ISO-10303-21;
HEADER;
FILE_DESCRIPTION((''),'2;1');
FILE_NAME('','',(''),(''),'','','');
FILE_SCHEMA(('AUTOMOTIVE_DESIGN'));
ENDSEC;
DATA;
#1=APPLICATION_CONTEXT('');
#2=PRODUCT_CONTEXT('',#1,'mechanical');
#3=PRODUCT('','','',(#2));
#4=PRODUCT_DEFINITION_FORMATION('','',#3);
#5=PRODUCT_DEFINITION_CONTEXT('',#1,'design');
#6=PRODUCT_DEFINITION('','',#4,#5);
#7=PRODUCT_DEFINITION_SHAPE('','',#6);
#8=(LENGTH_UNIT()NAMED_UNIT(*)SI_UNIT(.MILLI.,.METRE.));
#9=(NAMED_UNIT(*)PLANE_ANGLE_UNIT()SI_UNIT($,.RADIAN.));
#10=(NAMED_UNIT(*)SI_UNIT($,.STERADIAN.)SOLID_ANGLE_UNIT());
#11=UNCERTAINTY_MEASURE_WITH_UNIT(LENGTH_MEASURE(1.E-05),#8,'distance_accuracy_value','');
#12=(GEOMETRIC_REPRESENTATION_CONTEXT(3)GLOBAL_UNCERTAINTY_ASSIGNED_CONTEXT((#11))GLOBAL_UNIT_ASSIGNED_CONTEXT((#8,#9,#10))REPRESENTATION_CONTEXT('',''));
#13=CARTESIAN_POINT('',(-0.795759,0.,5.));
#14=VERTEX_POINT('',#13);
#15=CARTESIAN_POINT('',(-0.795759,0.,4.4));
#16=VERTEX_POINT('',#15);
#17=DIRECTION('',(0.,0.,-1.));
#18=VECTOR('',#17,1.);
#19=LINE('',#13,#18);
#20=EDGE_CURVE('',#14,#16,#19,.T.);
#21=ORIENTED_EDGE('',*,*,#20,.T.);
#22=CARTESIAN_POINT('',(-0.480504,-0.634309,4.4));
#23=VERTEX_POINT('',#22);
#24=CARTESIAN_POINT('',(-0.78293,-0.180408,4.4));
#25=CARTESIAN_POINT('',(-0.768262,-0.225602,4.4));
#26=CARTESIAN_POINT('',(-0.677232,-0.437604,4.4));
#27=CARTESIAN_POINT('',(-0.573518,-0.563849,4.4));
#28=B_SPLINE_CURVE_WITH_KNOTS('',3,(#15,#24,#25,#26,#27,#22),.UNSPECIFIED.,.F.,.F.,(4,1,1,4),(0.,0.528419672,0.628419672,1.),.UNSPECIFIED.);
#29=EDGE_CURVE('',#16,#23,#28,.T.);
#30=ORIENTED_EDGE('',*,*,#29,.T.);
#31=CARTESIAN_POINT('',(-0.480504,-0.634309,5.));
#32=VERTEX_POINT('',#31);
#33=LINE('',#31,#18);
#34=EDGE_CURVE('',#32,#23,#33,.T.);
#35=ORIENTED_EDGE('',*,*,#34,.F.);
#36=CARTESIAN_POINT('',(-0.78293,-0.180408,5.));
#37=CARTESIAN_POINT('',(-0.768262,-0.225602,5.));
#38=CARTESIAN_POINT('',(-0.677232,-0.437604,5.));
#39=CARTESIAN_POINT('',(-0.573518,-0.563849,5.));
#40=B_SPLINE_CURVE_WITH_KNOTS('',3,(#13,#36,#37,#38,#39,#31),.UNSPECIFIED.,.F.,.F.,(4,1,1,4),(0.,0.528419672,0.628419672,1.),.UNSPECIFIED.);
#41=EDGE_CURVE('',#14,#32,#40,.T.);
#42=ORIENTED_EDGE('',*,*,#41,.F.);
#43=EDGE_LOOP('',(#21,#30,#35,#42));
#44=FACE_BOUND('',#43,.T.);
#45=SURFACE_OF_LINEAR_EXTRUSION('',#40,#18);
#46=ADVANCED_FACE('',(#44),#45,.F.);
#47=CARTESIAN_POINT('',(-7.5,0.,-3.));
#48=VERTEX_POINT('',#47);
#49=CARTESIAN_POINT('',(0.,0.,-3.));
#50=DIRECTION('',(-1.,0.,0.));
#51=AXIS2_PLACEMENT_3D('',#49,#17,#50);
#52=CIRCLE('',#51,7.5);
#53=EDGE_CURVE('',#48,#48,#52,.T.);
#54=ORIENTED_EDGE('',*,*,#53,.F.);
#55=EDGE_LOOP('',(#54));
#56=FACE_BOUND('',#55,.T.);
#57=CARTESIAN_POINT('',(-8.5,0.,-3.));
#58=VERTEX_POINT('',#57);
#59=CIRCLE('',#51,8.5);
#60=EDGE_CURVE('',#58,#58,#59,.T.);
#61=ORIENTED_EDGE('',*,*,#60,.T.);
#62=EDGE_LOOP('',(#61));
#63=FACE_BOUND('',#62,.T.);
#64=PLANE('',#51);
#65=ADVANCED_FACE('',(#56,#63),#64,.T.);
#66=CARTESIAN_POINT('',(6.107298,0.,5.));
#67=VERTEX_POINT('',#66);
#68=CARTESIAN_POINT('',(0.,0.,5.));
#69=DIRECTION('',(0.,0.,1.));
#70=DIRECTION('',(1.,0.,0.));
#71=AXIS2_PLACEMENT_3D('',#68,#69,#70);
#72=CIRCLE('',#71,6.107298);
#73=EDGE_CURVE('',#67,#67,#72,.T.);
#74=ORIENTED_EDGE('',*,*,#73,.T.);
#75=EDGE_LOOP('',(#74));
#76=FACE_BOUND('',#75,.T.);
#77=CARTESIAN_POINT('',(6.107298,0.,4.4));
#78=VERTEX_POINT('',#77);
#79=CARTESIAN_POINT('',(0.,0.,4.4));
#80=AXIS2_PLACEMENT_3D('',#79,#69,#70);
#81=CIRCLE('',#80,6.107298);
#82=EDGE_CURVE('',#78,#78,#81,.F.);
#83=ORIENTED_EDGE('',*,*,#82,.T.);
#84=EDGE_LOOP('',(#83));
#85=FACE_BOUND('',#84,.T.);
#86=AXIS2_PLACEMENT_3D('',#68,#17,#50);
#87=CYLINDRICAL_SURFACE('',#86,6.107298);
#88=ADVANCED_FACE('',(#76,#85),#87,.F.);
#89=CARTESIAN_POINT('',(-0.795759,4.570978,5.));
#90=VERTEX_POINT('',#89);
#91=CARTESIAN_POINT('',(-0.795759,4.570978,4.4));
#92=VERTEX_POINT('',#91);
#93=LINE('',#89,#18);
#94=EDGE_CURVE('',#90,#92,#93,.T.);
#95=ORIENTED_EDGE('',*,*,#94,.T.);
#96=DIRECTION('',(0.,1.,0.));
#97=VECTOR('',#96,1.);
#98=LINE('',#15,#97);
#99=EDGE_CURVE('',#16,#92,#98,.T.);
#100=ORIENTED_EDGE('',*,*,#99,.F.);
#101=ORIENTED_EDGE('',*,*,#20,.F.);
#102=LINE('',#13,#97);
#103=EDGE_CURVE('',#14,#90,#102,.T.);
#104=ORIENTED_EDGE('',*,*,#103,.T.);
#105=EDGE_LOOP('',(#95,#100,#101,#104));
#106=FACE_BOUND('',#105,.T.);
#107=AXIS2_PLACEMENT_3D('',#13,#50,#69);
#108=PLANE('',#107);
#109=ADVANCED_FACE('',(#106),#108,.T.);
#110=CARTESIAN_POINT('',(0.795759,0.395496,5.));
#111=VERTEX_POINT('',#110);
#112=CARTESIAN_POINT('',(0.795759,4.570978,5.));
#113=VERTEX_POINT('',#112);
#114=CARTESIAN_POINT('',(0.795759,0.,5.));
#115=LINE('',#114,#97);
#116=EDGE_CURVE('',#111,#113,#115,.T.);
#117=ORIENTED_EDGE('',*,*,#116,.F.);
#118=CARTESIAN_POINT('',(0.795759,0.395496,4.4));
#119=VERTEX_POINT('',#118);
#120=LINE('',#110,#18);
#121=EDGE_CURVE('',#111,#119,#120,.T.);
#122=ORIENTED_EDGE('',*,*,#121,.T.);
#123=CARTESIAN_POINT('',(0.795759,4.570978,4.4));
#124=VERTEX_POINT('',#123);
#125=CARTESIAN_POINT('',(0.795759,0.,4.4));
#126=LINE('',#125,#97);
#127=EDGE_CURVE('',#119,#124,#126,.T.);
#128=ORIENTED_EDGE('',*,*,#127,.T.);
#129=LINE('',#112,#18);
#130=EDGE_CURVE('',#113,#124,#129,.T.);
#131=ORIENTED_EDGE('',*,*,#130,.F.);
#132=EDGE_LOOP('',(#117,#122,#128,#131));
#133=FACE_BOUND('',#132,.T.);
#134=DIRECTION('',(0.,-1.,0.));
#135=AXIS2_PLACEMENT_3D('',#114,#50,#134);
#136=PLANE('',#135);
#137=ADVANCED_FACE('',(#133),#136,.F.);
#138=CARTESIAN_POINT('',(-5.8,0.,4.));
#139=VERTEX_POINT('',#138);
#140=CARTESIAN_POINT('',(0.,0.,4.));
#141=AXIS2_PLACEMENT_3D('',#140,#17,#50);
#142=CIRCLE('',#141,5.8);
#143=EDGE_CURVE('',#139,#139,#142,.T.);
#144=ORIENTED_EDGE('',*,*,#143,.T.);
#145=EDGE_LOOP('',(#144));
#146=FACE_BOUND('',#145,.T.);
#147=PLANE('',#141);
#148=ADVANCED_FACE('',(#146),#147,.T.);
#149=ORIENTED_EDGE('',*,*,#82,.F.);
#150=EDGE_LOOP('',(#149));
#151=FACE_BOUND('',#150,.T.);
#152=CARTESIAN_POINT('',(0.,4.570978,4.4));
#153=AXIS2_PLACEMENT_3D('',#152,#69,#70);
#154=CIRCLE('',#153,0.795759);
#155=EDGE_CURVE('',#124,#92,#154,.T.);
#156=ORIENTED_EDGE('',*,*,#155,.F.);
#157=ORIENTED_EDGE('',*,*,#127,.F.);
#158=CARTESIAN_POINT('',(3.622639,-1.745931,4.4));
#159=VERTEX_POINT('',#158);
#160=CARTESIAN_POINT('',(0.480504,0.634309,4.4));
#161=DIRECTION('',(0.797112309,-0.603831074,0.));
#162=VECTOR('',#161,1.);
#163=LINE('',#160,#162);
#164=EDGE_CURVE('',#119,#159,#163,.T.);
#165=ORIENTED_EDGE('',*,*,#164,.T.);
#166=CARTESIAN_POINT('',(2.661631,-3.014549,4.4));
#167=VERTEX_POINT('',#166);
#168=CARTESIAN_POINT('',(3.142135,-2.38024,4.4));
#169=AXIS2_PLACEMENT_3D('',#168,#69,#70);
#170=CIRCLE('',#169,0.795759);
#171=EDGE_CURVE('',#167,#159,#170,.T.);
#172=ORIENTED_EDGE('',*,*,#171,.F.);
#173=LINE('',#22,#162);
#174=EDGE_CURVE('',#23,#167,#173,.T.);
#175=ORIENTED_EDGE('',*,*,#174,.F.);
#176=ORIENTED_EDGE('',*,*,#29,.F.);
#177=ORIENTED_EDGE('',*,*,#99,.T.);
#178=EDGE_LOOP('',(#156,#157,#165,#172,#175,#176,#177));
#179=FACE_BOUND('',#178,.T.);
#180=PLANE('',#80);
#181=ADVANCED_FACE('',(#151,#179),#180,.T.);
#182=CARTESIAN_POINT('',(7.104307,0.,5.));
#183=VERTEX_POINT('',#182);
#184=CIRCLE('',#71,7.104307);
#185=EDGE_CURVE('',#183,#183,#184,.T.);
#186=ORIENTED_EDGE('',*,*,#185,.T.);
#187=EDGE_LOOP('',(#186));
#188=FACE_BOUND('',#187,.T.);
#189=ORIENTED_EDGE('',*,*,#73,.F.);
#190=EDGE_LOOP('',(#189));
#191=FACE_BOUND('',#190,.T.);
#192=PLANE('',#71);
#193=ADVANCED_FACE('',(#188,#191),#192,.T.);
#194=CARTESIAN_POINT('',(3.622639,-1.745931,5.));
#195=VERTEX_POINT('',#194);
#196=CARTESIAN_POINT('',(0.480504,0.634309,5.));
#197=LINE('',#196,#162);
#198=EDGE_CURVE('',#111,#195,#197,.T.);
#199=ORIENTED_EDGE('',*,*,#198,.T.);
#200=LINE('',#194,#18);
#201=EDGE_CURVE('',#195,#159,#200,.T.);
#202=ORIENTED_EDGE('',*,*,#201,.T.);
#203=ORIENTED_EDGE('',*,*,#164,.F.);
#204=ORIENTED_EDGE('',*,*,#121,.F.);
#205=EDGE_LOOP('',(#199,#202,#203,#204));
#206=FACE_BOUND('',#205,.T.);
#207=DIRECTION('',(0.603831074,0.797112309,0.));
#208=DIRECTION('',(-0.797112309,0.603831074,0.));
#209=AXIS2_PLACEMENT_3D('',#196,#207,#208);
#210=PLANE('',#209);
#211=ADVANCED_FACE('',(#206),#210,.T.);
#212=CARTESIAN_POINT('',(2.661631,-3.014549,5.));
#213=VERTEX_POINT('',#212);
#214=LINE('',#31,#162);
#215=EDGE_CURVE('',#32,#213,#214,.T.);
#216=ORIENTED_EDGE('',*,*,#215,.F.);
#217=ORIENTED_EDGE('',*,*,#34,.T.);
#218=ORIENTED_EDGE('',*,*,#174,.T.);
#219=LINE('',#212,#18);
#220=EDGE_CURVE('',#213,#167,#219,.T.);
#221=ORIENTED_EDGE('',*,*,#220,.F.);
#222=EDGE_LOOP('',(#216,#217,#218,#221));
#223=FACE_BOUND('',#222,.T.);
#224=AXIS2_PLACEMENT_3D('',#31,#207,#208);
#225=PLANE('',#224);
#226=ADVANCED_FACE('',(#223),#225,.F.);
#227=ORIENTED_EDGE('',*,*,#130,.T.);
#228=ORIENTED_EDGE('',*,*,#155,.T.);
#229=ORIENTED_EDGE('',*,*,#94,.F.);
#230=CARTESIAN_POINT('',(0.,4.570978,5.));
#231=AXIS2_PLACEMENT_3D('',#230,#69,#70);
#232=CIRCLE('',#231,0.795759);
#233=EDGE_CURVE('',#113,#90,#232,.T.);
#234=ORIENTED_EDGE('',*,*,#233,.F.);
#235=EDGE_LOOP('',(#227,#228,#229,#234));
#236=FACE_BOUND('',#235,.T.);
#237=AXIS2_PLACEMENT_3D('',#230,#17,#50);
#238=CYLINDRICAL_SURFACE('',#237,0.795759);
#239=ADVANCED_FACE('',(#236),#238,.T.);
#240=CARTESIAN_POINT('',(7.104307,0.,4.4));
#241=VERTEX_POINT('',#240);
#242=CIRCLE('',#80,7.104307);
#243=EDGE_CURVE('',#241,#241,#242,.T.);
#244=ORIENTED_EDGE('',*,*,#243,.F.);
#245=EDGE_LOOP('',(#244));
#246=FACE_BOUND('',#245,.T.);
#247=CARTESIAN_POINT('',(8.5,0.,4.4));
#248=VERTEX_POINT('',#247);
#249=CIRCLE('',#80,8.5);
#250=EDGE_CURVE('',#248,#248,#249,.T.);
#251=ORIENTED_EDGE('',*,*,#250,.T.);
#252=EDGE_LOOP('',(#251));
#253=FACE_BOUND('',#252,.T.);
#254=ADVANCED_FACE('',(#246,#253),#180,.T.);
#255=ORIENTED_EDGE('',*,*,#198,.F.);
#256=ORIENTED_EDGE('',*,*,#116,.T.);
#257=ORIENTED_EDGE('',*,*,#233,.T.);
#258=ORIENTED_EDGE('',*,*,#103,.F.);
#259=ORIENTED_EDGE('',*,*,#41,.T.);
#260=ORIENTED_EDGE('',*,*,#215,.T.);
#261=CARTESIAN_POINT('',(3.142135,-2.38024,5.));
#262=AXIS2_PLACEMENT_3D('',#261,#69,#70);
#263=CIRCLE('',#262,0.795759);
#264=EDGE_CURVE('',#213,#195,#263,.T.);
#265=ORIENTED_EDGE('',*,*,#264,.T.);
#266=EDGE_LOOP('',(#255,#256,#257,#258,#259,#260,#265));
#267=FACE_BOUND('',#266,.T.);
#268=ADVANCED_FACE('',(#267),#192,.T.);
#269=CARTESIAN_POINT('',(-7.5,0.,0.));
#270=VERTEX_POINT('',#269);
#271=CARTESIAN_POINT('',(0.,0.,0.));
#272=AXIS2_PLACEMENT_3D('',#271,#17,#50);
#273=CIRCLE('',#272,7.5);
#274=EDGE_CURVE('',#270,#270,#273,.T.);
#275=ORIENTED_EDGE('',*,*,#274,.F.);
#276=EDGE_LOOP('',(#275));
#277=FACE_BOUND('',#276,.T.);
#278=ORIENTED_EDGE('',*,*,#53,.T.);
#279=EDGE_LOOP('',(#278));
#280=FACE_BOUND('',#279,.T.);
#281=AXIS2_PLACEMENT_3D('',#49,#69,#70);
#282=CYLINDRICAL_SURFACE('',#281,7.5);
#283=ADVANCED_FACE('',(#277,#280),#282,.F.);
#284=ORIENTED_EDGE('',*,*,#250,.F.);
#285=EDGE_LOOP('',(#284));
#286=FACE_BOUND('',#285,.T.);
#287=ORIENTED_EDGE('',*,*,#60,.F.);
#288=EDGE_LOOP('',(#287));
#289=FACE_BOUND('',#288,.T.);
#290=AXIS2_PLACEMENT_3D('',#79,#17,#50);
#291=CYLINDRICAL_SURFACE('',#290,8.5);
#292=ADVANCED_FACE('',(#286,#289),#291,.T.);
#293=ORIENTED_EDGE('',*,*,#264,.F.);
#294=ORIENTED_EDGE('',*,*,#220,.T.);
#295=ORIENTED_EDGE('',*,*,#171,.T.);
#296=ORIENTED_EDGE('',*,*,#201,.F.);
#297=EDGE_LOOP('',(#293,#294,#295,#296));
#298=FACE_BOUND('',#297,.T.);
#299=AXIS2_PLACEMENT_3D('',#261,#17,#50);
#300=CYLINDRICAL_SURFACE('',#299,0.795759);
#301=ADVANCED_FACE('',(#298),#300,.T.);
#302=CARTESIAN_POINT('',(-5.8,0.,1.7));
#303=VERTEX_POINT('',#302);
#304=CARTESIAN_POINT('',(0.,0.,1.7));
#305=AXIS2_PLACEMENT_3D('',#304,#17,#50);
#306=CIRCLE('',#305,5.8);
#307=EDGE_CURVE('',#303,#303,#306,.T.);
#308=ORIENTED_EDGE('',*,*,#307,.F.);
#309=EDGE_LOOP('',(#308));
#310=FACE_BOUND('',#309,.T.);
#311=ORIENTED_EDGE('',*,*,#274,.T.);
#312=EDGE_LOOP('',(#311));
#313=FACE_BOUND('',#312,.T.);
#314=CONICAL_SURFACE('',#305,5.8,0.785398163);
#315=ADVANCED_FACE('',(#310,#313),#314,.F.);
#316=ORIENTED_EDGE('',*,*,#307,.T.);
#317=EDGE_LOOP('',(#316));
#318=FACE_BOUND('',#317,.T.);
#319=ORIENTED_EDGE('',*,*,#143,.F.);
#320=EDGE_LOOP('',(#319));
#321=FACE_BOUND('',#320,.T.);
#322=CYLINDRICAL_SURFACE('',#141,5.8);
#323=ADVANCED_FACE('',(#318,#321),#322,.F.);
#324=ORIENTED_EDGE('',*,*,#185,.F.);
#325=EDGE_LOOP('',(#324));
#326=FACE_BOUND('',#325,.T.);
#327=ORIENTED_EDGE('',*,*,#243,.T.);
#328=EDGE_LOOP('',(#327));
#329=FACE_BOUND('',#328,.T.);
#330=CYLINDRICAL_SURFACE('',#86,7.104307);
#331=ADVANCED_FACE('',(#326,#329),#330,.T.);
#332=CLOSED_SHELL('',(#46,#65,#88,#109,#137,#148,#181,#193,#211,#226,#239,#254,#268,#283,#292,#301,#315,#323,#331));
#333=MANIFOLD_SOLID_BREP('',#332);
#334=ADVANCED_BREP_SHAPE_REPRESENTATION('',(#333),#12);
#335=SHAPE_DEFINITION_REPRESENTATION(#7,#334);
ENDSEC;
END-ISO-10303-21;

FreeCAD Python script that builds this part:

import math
import FreeCAD as App
import Part
import Sketcher


def add_polygon(sketch, points):
    """Adds a closed chain of lines whose ends are joined by coincident constraints."""
    first, n = sketch.GeometryCount, len(points)
    for a, b in zip(points, points[1:] + points[:1]):
        sketch.addGeometry(Part.LineSegment(App.Vector(*a, 0), App.Vector(*b, 0)), False)
    for i in range(n):
        sketch.addConstraint(Sketcher.Constraint("Coincident", first + i, 2, first + (i + 1) % n, 1))

doc = App.newDocument("Part")
body = doc.addObject("PartDesign::Body", "Body")

# Sketch on XY plane
sketch1 = body.newObject("Sketcher::SketchObject", "Sketch")
sketch1.AttachmentSupport = (doc.getObject("XY_Plane"), [""])
sketch1.MapMode = "FlatFace"
sketch1.addGeometry(Part.Circle(App.Vector(0, 0, 0), App.Vector(0, 0, 1), 8), False)
sketch1.addConstraint(Sketcher.Constraint("Coincident", 0, 3, -1, 1))
sketch1.addConstraint(Sketcher.Constraint("Diameter", 0, 17.0))
pad1 = body.newObject("PartDesign::Pad", "Pad")
pad1.Profile = sketch1
pad1.Length = 4.4

# Sketch on XY plane
sketch2 = body.newObject("Sketcher::SketchObject", "Sketch001")
sketch2.AttachmentSupport = (doc.getObject("XY_Plane"), [""])
sketch2.MapMode = "FlatFace"
sketch2.AttachmentOffset = App.Placement(App.Vector(0, 0, 4.4), App.Rotation())
sketch2.addGeometry(Part.Circle(App.Vector(0, 0, 0), App.Vector(0, 0, 1), 7.104307), False)
sketch2.addGeometry(Part.Circle(App.Vector(0, 0, 0), App.Vector(0, 0, 1), 6.107298), False)
sketch2.addGeometry(Part.LineSegment(App.Vector(-0.795759, 4.570978, 0), App.Vector(-0.795759, 0, 0)), False)
sketch2.addGeometry(Part.BSplineCurve([App.Vector(-0.795759, 0, 0), App.Vector(-0.78293, -0.180408, 0), App.Vector(-0.768262, -0.225602, 0), App.Vector(-0.677232, -0.437604, 0), App.Vector(-0.573518, -0.563849, 0), App.Vector(-0.480504, -0.634309, 0)], [4, 1, 1, 4], [0, 0.528419672, 0.628419672, 1], False, 3, [1, 1, 1, 1, 1, 1], False), False)
sketch2.addGeometry(Part.LineSegment(App.Vector(-0.480504, -0.634309, 0), App.Vector(2.661631, -3.014549, 0)), False)
sketch2.addGeometry(Part.ArcOfCircle(Part.Circle(App.Vector(3.142135, -2.38024, 0), App.Vector(0, 0, 1), 0.795759), math.radians(-127.144774), math.radians(52.855226)), False)
sketch2.addGeometry(Part.LineSegment(App.Vector(3.622639, -1.745931, 0), App.Vector(0.795759, 0.395496, 0)), False)
sketch2.addGeometry(Part.LineSegment(App.Vector(0.795759, 0.395496, 0), App.Vector(0.795759, 4.570978, 0)), False)
sketch2.addGeometry(Part.ArcOfCircle(Part.Circle(App.Vector(0, 4.570978, 0), App.Vector(0, 0, 1), 0.795759), math.radians(0), math.radians(180)), False)
sketch2.addConstraint(Sketcher.Constraint("Block", 3))
sketch2.addConstraint(Sketcher.Constraint("Coincident", 2, 2, 3, 1))
sketch2.addConstraint(Sketcher.Constraint("Coincident", 3, 2, 4, 1))
sketch2.addConstraint(Sketcher.Constraint("Coincident", 4, 2, 5, 1))
sketch2.addConstraint(Sketcher.Constraint("Coincident", 5, 2, 6, 1))
sketch2.addConstraint(Sketcher.Constraint("Coincident", 6, 2, 7, 1))
sketch2.addConstraint(Sketcher.Constraint("Coincident", 7, 2, 8, 1))
sketch2.addConstraint(Sketcher.Constraint("Coincident", 8, 2, 2, 1))
sketch2.addConstraint(Sketcher.Constraint("Vertical", 2))
sketch2.addConstraint(Sketcher.Constraint("Vertical", 7))
sketch2.addConstraint(Sketcher.Constraint("Coincident", 0, 3, -1, 1))
sketch2.addConstraint(Sketcher.Constraint("Coincident", 1, 3, -1, 1))
sketch2.addConstraint(Sketcher.Constraint("PointOnObject", 8, 3, -2))
sketch2.addConstraint(Sketcher.Constraint("Radius", 5, 0.795759))
sketch2.addConstraint(Sketcher.Constraint("Diameter", 0, 14.208615))
sketch2.addConstraint(Sketcher.Constraint("Diameter", 1, 12.214597))
sketch2.addConstraint(Sketcher.Constraint("Distance", 6, 3.546401))
sketch2.addConstraint(Sketcher.Constraint("DistanceY", 2, 2, 2, 1, 4.570978))
sketch2.addConstraint(Sketcher.Constraint("DistanceY", 7, 1, 7, 2, 4.175482))
sketch2.addConstraint(Sketcher.Constraint("DistanceY", 5, 3, -1, 1, 2.38024))
sketch2.addConstraint(Sketcher.Constraint("DistanceY", -1, 1, 8, 3, 4.570978))
sketch2.addConstraint(Sketcher.Constraint("DistanceX", -1, 1, 4, 2, 2.661631))
sketch2.addConstraint(Sketcher.Constraint("DistanceY", 4, 2, -1, 1, 3.014549))
sketch2.addConstraint(Sketcher.Constraint("DistanceX", -1, 1, 5, 2, 3.622639))
pad2 = body.newObject("PartDesign::Pad", "Pad001")
pad2.Profile = sketch2
pad2.Length = 0.6

# Sketch on XY plane
sketch3 = body.newObject("Sketcher::SketchObject", "Sketch002")
sketch3.AttachmentSupport = (doc.getObject("XY_Plane"), [""])
sketch3.MapMode = "FlatFace"
sketch3.addGeometry(Part.Circle(App.Vector(0, 0, 0), App.Vector(0, 0, 1), 6), False)
sketch3.addConstraint(Sketcher.Constraint("Coincident", 0, 3, -1, 1))
sketch3.addConstraint(Sketcher.Constraint("Diameter", 0, 11.6))
pocket1 = body.newObject("PartDesign::Pocket", "Pocket")
pocket1.Profile = sketch3
pocket1.Length = 4
pocket1.Reversed = True

# Sketch on XY plane
sketch4 = body.newObject("Sketcher::SketchObject", "Sketch003")
sketch4.AttachmentSupport = (doc.getObject("XY_Plane"), [""])
sketch4.MapMode = "FlatFace"
sketch4.AttachmentOffset = App.Placement(App.Vector(0, 0, -3), App.Rotation())
sketch4.addGeometry(Part.Circle(App.Vector(0, 0, 0), App.Vector(0, 0, 1), 8), False)
sketch4.addGeometry(Part.Circle(App.Vector(0, 0, 0), App.Vector(0, 0, 1), 8), False)
sketch4.addConstraint(Sketcher.Constraint("Coincident", 0, 3, -1, 1))
sketch4.addConstraint(Sketcher.Constraint("Coincident", 1, 3, -1, 1))
sketch4.addConstraint(Sketcher.Constraint("Diameter", 0, 17.0))
sketch4.addConstraint(Sketcher.Constraint("Diameter", 1, 15.0))
pad3 = body.newObject("PartDesign::Pad", "Pad002")
pad3.Profile = sketch4
pad3.Length = 3

# Sketch on XZ plane
sketch5 = body.newObject("Sketcher::SketchObject", "Sketch004")
sketch5.AttachmentSupport = (doc.getObject("XZ_Plane"), [""])
sketch5.MapMode = "FlatFace"
add_polygon(sketch5, [(5.8, 1.7), (7.5, 0), (5.8, 0)])  # lines 0-2
sketch5.addConstraint(Sketcher.Constraint("Horizontal", 1))
sketch5.addConstraint(Sketcher.Constraint("Vertical", 2))
sketch5.addConstraint(Sketcher.Constraint("PointOnObject", 0, 2, -1))
sketch5.addConstraint(Sketcher.Constraint("Equal", 1, 2))
sketch5.addConstraint(Sketcher.Constraint("DistanceX", 1, 2, 1, 1, 1.7))
sketch5.addConstraint(Sketcher.Constraint("DistanceX", -1, 1, 0, 2, 7.5))
groove = body.newObject("PartDesign::Groove", "Groove")
groove.Profile = sketch5
groove.ReferenceAxis = (sketch5, ["V_Axis"])
groove.Angle = 360

doc.recompute()
